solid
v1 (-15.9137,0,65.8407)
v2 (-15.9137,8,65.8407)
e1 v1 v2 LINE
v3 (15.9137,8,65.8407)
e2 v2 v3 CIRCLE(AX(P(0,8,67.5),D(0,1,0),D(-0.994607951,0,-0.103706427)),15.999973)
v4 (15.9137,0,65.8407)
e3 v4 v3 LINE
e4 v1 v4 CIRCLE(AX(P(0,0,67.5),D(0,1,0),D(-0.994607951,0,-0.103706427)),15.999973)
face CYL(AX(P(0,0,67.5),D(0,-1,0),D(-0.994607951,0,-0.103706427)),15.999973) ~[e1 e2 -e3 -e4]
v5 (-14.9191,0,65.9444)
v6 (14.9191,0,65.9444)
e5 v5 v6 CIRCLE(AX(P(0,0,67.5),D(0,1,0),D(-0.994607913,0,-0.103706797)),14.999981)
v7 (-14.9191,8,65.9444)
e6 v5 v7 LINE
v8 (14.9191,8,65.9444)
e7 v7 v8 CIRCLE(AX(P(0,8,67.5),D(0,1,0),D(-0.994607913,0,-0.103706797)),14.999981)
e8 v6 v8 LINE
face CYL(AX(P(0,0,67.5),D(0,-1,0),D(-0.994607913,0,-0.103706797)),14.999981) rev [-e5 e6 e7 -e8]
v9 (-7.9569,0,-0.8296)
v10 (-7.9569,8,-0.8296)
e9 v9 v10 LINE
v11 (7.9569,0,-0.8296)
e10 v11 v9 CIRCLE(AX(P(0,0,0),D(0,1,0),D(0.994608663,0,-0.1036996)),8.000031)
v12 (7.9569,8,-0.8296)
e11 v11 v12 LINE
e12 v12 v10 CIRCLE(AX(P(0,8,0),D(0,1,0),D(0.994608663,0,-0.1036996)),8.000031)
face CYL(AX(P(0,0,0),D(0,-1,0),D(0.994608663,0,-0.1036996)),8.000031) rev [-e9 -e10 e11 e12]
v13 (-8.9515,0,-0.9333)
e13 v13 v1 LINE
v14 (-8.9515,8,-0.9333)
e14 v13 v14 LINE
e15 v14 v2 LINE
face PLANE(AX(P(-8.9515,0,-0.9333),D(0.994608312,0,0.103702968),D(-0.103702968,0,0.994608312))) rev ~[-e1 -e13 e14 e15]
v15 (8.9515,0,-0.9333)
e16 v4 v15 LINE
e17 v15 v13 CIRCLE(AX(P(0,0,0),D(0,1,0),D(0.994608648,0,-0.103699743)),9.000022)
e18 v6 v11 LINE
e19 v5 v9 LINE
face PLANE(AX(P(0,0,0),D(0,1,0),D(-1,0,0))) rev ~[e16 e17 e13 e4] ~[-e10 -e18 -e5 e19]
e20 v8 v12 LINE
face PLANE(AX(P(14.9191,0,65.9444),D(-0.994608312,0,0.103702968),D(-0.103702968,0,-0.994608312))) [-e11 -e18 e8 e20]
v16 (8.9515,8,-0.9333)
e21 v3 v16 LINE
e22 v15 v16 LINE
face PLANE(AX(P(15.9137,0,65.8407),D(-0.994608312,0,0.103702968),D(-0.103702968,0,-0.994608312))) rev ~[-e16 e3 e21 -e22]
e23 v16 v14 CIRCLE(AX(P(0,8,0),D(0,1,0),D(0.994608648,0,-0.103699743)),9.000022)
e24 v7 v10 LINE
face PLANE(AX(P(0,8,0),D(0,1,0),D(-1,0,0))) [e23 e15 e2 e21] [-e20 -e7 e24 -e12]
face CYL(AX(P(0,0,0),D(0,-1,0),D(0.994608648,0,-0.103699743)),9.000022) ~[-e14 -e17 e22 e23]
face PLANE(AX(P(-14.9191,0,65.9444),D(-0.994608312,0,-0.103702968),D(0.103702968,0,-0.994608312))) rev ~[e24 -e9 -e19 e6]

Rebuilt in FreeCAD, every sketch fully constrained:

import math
import FreeCAD as App
import Part
import Sketcher

V = App.Vector

doc = App.newDocument("Part")
body = doc.addObject("PartDesign::Body", "Body")

# Sketch on XZ plane
sketch1 = doc.addObject("Sketcher::SketchObject", "Sketch")
body.addObject(sketch1)
sketch1.AttachmentSupport = (doc.XZ_Plane, [""])
sketch1.MapMode = "FlatFace"
sketch1.addGeometry(Part.ArcOfCircle(Part.Circle(V(0, 0, 0), V(0, 0, 1), 9), math.radians(-174), math.radians(-6)), False)
sketch1.addGeometry(Part.LineSegment(V(-9, -1, 0), V(-16, 66, 0)), False)
sketch1.addGeometry(Part.ArcOfCircle(Part.Circle(V(0, 68, 0), V(0, 0, 1), 16), math.radians(-6), math.radians(186)), False)
sketch1.addGeometry(Part.LineSegment(V(16, 66, 0), V(9, -1, 0)), False)
sketch1.addGeometry(Part.ArcOfCircle(Part.Circle(V(0, 0, 0), V(0, 0, 1), 8), math.radians(-174), math.radians(-6)), False)
sketch1.addGeometry(Part.LineSegment(V(8, -1, 0), V(15, 66, 0)), False)
sketch1.addGeometry(Part.ArcOfCircle(Part.Circle(V(0, 68, 0), V(0, 0, 1), 15), math.radians(-6), math.radians(186)), False)
sketch1.addGeometry(Part.LineSegment(V(-15, 66, 0), V(-8, -1, 0)), False)
sketch1.addConstraint(Sketcher.Constraint("Tangent", 0, 1, 1, 1))
sketch1.addConstraint(Sketcher.Constraint("Tangent", 1, 2, 2, 2))
sketch1.addConstraint(Sketcher.Constraint("Tangent", 2, 1, 3, 1))
sketch1.addConstraint(Sketcher.Constraint("Tangent", 3, 2, 0, 2))
sketch1.addConstraint(Sketcher.Constraint("Tangent", 4, 2, 5, 1))
sketch1.addConstraint(Sketcher.Constraint("Tangent", 5, 2, 6, 1))
sketch1.addConstraint(Sketcher.Constraint("Tangent", 6, 2, 7, 1))
sketch1.addConstraint(Sketcher.Constraint("Tangent", 7, 2, 4, 1))
sketch1.addConstraint(Sketcher.Constraint("Coincident", 0, 3, -1, 1))
sketch1.addConstraint(Sketcher.Constraint("Coincident", 4, 3, -1, 1))
sketch1.addConstraint(Sketcher.Constraint("Coincident", 6, 3, 2, 3))
sketch1.addConstraint(Sketcher.Constraint("PointOnObject", 2, 3, -2))
sketch1.addConstraint(Sketcher.Constraint("Parallel", 3, 5))
sketch1.addConstraint(Sketcher.Constraint("Radius", 2, 16.0))
sketch1.addConstraint(Sketcher.Constraint("Radius", 4, 8.0))
sketch1.addConstraint(Sketcher.Constraint("Radius", 6, 15.0))
sketch1.addConstraint(Sketcher.Constraint("DistanceY", -1, 1, 2, 3, 67.5))
pad1 = doc.addObject("PartDesign::Pad", "Pad")
body.addObject(pad1)
pad1.Profile = sketch1
pad1.Length = 8
pad1.Reversed = True

doc.recompute()
